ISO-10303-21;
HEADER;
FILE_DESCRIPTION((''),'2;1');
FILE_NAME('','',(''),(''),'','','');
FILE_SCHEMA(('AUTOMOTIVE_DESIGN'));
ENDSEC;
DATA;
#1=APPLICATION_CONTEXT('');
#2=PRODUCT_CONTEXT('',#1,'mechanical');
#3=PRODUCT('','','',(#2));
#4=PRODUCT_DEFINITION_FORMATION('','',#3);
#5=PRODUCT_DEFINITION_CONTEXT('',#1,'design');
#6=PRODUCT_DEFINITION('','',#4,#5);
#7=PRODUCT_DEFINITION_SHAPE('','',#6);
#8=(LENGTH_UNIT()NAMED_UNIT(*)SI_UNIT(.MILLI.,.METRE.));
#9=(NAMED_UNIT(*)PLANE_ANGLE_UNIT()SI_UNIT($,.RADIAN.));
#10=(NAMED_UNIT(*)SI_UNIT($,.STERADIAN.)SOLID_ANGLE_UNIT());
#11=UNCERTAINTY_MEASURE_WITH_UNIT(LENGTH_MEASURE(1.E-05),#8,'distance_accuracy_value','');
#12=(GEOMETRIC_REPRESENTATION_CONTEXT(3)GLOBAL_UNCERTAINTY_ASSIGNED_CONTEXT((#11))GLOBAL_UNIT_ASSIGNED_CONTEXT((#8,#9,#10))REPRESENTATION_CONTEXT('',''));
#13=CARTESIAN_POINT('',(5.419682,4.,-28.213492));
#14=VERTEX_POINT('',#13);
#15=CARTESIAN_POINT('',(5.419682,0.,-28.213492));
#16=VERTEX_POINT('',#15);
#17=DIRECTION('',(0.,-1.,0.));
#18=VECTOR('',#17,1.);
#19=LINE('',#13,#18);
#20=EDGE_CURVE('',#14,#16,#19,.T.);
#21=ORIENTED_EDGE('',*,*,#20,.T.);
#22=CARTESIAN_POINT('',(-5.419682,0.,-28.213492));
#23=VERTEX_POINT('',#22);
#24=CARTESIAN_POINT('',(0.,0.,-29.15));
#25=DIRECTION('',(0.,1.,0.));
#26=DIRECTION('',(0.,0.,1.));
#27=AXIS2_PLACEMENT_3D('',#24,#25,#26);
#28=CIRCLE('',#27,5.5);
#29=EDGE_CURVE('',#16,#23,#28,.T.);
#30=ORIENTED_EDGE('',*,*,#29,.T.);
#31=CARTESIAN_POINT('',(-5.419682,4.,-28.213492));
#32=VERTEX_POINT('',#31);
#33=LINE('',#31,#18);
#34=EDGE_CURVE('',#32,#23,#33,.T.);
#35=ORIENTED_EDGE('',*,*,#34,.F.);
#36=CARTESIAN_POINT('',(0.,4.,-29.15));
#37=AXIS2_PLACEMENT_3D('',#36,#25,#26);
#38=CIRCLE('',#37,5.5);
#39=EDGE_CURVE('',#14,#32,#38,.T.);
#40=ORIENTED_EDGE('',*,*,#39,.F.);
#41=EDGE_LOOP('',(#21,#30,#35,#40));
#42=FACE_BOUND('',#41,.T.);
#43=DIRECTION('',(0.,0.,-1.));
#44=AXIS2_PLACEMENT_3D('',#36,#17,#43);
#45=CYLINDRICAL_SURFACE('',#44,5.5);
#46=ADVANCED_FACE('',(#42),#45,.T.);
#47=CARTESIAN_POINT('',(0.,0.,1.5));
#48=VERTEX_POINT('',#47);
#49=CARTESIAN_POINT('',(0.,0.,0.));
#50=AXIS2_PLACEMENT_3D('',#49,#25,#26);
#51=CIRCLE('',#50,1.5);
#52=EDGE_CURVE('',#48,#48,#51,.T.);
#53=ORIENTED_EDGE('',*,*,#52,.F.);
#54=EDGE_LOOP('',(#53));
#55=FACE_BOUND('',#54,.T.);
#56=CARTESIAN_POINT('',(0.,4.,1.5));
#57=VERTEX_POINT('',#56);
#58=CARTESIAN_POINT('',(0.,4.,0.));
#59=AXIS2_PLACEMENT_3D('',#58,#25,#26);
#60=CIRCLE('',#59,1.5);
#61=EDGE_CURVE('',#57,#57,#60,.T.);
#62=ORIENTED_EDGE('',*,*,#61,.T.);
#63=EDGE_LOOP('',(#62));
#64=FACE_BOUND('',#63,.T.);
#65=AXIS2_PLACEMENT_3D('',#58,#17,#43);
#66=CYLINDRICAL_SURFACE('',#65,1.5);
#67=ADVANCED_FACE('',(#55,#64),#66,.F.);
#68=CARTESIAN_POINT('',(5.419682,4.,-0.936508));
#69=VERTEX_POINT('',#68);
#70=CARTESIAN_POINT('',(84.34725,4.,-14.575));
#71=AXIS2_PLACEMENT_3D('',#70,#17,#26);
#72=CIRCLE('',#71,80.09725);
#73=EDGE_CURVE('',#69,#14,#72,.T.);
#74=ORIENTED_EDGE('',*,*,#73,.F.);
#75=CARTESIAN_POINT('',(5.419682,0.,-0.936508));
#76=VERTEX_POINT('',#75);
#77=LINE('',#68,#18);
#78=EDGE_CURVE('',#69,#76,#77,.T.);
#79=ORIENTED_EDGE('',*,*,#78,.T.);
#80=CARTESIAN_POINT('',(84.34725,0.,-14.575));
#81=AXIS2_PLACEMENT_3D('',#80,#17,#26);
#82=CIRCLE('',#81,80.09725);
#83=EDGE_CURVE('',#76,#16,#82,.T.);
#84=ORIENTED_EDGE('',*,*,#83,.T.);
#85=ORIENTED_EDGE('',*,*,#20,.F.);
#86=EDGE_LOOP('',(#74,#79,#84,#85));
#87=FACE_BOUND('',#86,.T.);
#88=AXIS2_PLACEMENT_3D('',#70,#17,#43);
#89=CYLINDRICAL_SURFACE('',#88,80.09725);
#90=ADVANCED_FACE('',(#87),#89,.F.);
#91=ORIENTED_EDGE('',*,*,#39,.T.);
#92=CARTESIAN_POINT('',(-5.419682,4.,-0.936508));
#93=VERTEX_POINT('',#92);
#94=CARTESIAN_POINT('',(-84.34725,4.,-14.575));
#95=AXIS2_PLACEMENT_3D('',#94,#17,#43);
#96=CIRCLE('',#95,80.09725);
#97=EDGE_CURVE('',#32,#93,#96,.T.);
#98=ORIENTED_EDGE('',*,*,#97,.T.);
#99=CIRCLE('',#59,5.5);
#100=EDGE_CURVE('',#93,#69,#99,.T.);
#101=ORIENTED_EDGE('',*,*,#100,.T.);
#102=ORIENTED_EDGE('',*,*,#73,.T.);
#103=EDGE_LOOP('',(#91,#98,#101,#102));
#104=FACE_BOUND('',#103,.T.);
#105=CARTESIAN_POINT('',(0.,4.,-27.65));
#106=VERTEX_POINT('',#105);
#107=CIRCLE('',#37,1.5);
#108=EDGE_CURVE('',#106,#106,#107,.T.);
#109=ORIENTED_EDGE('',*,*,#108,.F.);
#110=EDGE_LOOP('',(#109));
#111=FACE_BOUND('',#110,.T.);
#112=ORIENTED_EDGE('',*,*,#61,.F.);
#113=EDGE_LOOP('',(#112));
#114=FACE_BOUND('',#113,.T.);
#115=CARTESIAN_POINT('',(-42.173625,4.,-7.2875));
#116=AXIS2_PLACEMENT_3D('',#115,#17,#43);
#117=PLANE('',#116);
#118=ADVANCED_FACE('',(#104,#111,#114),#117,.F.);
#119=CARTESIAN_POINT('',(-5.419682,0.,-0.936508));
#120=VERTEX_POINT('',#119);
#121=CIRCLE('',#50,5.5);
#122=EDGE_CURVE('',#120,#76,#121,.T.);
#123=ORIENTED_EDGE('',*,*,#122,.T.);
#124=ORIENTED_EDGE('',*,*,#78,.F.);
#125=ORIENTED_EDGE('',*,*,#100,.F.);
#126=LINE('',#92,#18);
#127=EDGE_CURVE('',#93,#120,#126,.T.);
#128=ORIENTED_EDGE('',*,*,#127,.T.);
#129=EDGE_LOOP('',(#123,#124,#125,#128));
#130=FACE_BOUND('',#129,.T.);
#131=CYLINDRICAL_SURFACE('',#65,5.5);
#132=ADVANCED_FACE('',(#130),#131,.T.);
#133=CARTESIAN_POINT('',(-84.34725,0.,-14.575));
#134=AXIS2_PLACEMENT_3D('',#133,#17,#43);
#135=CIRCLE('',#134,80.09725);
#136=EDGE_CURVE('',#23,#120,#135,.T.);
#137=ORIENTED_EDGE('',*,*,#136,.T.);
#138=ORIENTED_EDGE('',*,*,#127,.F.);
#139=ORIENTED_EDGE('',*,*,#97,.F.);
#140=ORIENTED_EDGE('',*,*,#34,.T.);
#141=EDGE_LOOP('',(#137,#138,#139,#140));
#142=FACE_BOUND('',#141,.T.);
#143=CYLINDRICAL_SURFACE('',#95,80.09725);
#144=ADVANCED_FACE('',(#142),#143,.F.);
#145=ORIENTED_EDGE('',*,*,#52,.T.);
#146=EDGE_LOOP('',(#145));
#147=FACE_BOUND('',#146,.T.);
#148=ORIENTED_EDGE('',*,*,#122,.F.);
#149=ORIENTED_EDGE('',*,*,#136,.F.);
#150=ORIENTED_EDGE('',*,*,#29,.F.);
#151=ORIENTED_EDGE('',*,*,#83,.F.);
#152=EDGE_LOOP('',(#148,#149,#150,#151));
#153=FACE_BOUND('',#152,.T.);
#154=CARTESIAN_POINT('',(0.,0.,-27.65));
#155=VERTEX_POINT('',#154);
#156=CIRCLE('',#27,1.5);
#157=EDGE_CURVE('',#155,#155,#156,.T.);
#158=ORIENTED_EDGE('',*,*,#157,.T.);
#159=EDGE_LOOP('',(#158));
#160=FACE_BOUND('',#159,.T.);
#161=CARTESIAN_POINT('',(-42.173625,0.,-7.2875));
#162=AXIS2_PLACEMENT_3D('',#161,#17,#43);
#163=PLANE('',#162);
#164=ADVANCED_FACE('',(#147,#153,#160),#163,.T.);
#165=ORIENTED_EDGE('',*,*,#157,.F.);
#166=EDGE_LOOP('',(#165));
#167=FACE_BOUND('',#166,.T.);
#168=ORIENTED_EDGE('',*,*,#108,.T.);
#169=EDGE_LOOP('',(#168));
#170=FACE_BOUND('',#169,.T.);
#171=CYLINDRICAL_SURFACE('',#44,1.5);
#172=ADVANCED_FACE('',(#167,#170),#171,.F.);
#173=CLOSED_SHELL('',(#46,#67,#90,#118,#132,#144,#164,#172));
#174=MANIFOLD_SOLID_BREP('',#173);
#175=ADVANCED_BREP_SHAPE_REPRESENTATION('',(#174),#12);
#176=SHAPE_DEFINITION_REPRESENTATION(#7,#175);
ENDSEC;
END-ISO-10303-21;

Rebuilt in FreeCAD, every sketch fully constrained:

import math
import FreeCAD as App
import Part
import Sketcher

V = App.Vector

doc = App.newDocument("Part")
body = doc.addObject("PartDesign::Body", "Body")

# Sketch on XZ plane
sketch1 = body.newObject("Sketcher::SketchObject", "Sketch")
sketch1.AttachmentSupport = (doc.getObject("XZ_Plane"), [""])
sketch1.MapMode = "FlatFace"
sketch1.addGeometry(Part.ArcOfCircle(Part.Circle(V(0, 0, 0), V(0, 0, 1), 5.5), math.radians(-10), math.radians(190)), False)
sketch1.addGeometry(Part.ArcOfCircle(Part.Circle(V(84.3, -14.6, 0), V(0, 0, 1), 80.1), math.radians(170.2), math.radians(189.8)), False)
sketch1.addGeometry(Part.ArcOfCircle(Part.Circle(V(0, -29.1, 0), V(0, 0, 1), 5.5), math.radians(170), math.radians(370)), False)
sketch1.addGeometry(Part.ArcOfCircle(Part.Circle(V(-84.3, -14.6, 0), V(0, 0, 1), 80.1), math.radians(-9.8), math.radians(9.8)), False)
sketch1.addGeometry(Part.Circle(V(0, 0, 0), V(0, 0, 1), 1.5), False)
sketch1.addGeometry(Part.Circle(V(0, -29.1, 0), V(0, 0, 1), 1.5), False)
sketch1.addConstraint(Sketcher.Constraint("Tangent", 0, 1, 1, 1))
sketch1.addConstraint(Sketcher.Constraint("Tangent", 1, 2, 2, 2))
sketch1.addConstraint(Sketcher.Constraint("Tangent", 2, 1, 3, 1))
sketch1.addConstraint(Sketcher.Constraint("Tangent", 3, 2, 0, 2))
sketch1.addConstraint(Sketcher.Constraint("Coincident", 0, 3, -1, 1))
sketch1.addConstraint(Sketcher.Constraint("Coincident", 4, 3, -1, 1))
sketch1.addConstraint(Sketcher.Constraint("Coincident", 5, 3, 2, 3))
sketch1.addConstraint(Sketcher.Constraint("Equal", 0, 2))
sketch1.addConstraint(Sketcher.Constraint("Equal", 1, 3))
sketch1.addConstraint(Sketcher.Constraint("Equal", 4, 5))
sketch1.addConstraint(Sketcher.Constraint("PointOnObject", 2, 3, -2))
sketch1.addConstraint(Sketcher.Constraint("Diameter", 4, 3.0))
sketch1.addConstraint(Sketcher.Constraint("Radius", 0, 5.5))
sketch1.addConstraint(Sketcher.Constraint("DistanceY", 2, 3, -1, 1, 29.15))
sketch1.addConstraint(Sketcher.Constraint("Radius", 1, 80.09725))
pad1 = body.newObject("PartDesign::Pad", "Pad")
pad1.Profile = sketch1
pad1.Length = 4
pad1.Reversed = True

doc.recompute()
